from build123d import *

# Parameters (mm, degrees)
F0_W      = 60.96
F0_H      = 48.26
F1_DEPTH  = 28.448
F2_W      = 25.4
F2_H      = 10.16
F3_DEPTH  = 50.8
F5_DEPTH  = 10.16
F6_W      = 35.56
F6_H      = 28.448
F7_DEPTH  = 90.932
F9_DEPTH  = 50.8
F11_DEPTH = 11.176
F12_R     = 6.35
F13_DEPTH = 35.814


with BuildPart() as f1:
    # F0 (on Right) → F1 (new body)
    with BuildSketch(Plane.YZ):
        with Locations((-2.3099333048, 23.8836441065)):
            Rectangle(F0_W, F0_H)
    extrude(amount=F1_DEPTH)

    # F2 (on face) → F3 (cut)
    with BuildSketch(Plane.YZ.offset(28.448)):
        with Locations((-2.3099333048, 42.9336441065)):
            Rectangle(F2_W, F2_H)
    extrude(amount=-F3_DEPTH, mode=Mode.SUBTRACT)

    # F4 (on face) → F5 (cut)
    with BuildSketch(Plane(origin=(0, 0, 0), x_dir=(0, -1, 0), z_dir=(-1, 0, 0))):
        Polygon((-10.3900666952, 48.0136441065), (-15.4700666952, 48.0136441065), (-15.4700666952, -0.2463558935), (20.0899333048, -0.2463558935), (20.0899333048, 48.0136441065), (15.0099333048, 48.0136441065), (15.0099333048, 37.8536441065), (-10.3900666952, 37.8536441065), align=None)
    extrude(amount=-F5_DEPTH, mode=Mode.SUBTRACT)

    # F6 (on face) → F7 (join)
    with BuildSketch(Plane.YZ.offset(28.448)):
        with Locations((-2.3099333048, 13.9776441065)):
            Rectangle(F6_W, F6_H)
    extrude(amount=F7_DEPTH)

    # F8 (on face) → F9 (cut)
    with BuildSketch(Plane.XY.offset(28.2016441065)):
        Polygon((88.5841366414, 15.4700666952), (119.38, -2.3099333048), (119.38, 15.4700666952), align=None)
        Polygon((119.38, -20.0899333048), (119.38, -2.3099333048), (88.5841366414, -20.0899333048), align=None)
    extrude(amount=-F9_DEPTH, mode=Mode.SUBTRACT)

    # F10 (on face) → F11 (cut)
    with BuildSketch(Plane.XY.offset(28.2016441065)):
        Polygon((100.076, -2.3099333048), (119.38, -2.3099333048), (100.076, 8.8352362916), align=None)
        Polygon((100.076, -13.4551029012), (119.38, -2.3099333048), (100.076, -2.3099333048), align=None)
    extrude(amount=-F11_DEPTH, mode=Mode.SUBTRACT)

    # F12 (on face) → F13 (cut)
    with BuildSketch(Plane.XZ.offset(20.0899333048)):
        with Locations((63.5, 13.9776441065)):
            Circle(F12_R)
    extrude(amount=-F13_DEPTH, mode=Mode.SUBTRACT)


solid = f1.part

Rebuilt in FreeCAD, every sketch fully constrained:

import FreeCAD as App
import Part
import Sketcher

V = App.Vector
Q = App.Units.Quantity

doc = App.newDocument("Part")
params = doc.addObject("Spreadsheet::Sheet", "Params")
for row, (alias, value) in enumerate([
    ("sketch1_width", "2.4 in"),
    ("sketch1_height", "1.9 in"),
    ("pad1_length", "1.12 in"),
    ("sketch2_width", "1 in"),
    ("sketch2_height", "0.4 in"),
    ("pocket1_length", "2 in"),
    ("sketch3_width", "1 in"),
    ("sketch3_width2", "0.2 in"),
    ("sketch3_height", "1.9 in"),
    ("sketch3_height2", "0.4 in"),
    ("pocket2_length", "0.4 in"),
    ("sketch4_width", "1.4 in"),
    ("sketch4_height", "1.12 in"),
    ("pad2_length", "3.58 in"),
    ("sketch5_height", "0.7 in"),
    ("pocket3_length", "2 in"),
    ("pocket4_length", "0.44 in"),
    ("sketch7_diameter", "0.5 in"),
    ("pocket5_length", "1.41 in"),
], start=1):
    params.set(f"A{row}", alias)
    params.set(f"B{row}", "=" + value)
    params.setAlias(f"B{row}", alias)

body = doc.addObject("PartDesign::Body", "Body")

# Sketch on YZ plane
sketch1 = body.newObject("Sketcher::SketchObject", "Sketch")
sketch1.AttachmentSupport = (doc.getObject("YZ_Plane"), [""])
sketch1.MapMode = "FlatFace"
sketch1.addGeometry(Part.LineSegment(V(-33, 48, 0), V(-33, 0, 0)), False)
sketch1.addGeometry(Part.LineSegment(V(-33, 0, 0), V(28, 0, 0)), False)
sketch1.addGeometry(Part.LineSegment(V(28, 0, 0), V(28, 48, 0)), False)
sketch1.addGeometry(Part.LineSegment(V(28, 48, 0), V(-33, 48, 0)), False)
sketch1.addConstraint(Sketcher.Constraint("Coincident", 0, 2, 1, 1))
sketch1.addConstraint(Sketcher.Constraint("Coincident", 1, 2, 2, 1))
sketch1.addConstraint(Sketcher.Constraint("Coincident", 2, 2, 3, 1))
sketch1.addConstraint(Sketcher.Constraint("Coincident", 3, 2, 0, 1))
sketch1.addConstraint(Sketcher.Constraint("Vertical", 0))
sketch1.addConstraint(Sketcher.Constraint("Horizontal", 1))
sketch1.addConstraint(Sketcher.Constraint("Vertical", 2))
sketch1.addConstraint(Sketcher.Constraint("Horizontal", 3))
sketch1.addConstraint(Sketcher.Constraint("DistanceX", 1, 1, 1, 2, Q("2.4 in")))
sketch1.addConstraint(Sketcher.Constraint("DistanceY", 0, 2, 0, 1, Q("1.9 in")))
sketch1.addConstraint(Sketcher.Constraint("DistanceX", 0, 2, -1, 1, 32.789933))
sketch1.addConstraint(Sketcher.Constraint("DistanceY", 0, 2, -1, 1, 0.246356))
sketch1.setExpression("Constraints[8]", "Params.sketch1_width")
sketch1.setExpression("Constraints[9]", "Params.sketch1_height")
pad1 = body.newObject("PartDesign::Pad", "Pad")
pad1.Profile = sketch1
pad1.setExpression("Length", "Params.pad1_length")

# Sketch on YZ plane
sketch2 = body.newObject("Sketcher::SketchObject", "Sketch001")
sketch2.AttachmentSupport = (doc.getObject("YZ_Plane"), [""])
sketch2.MapMode = "FlatFace"
sketch2.AttachmentOffset = App.Placement(V(0, 0, 1.12 * 25.4), App.Rotation())
sketch2.addGeometry(Part.LineSegment(V(-15, 48, 0), V(-15, 38, 0)), False)
sketch2.addGeometry(Part.LineSegment(V(-15, 38, 0), V(10, 38, 0)), False)
sketch2.addGeometry(Part.LineSegment(V(10, 38, 0), V(10, 48, 0)), False)
sketch2.addGeometry(Part.LineSegment(V(10, 48, 0), V(-15, 48, 0)), False)
sketch2.addConstraint(Sketcher.Constraint("Coincident", 0, 2, 1, 1))
sketch2.addConstraint(Sketcher.Constraint("Coincident", 1, 2, 2, 1))
sketch2.addConstraint(Sketcher.Constraint("Coincident", 2, 2, 3, 1))
sketch2.addConstraint(Sketcher.Constraint("Coincident", 3, 2, 0, 1))
sketch2.addConstraint(Sketcher.Constraint("Vertical", 0))
sketch2.addConstraint(Sketcher.Constraint("Horizontal", 1))
sketch2.addConstraint(Sketcher.Constraint("Vertical", 2))
sketch2.addConstraint(Sketcher.Constraint("Horizontal", 3))
sketch2.addConstraint(Sketcher.Constraint("DistanceX", 1, 1, 1, 2, Q("1 in")))
sketch2.addConstraint(Sketcher.Constraint("DistanceY", 0, 2, 0, 1, Q("0.4 in")))
sketch2.addConstraint(Sketcher.Constraint("DistanceX", 0, 2, -1, 1, 15.009933))
sketch2.addConstraint(Sketcher.Constraint("DistanceY", -1, 1, 0, 2, 37.853644))
sketch2.setExpression("Constraints[8]", "Params.sketch2_width")
sketch2.setExpression("Constraints[9]", "Params.sketch2_height")
pocket1 = body.newObject("PartDesign::Pocket", "Pocket")
pocket1.Profile = sketch2
pocket1.setExpression("Length", "Params.pocket1_length")

# Sketch on YZ plane
sketch3 = body.newObject("Sketcher::SketchObject", "Sketch002")
sketch3.AttachmentSupport = (doc.getObject("YZ_Plane"), [""])
sketch3.MapMode = "FlatFace"
sketch3.addGeometry(Part.LineSegment(V(10, 48, 0), V(15, 48, 0)), False)
sketch3.addGeometry(Part.LineSegment(V(15, 48, 0), V(15, 0, 0)), False)
sketch3.addGeometry(Part.LineSegment(V(15, 0, 0), V(-20, 0, 0)), False)
sketch3.addGeometry(Part.LineSegment(V(-20, 0, 0), V(-20, 48, 0)), False)
sketch3.addGeometry(Part.LineSegment(V(-20, 48, 0), V(-15, 48, 0)), False)
sketch3.addGeometry(Part.LineSegment(V(-15, 48, 0), V(-15, 38, 0)), False)
sketch3.addGeometry(Part.LineSegment(V(-15, 38, 0), V(10, 38, 0)), False)
sketch3.addGeometry(Part.LineSegment(V(10, 38, 0), V(10, 48, 0)), False)
sketch3.addConstraint(Sketcher.Constraint("Coincident", 0, 2, 1, 1))
sketch3.addConstraint(Sketcher.Constraint("Coincident", 1, 2, 2, 1))
sketch3.addConstraint(Sketcher.Constraint("Coincident", 2, 2, 3, 1))
sketch3.addConstraint(Sketcher.Constraint("Coincident", 3, 2, 4, 1))
sketch3.addConstraint(Sketcher.Constraint("Coincident", 4, 2, 5, 1))
sketch3.addConstraint(Sketcher.Constraint("Coincident", 5, 2, 6, 1))
sketch3.addConstraint(Sketcher.Constraint("Coincident", 6, 2, 7, 1))
sketch3.addConstraint(Sketcher.Constraint("Coincident", 7, 2, 0, 1))
sketch3.addConstraint(Sketcher.Constraint("Horizontal", 0))
sketch3.addConstraint(Sketcher.Constraint("Vertical", 1))
sketch3.addConstraint(Sketcher.Constraint("Horizontal", 2))
sketch3.addConstraint(Sketcher.Constraint("Vertical", 3))
sketch3.addConstraint(Sketcher.Constraint("Horizontal", 4))
sketch3.addConstraint(Sketcher.Constraint("Vertical", 5))
sketch3.addConstraint(Sketcher.Constraint("Horizontal", 6))
sketch3.addConstraint(Sketcher.Constraint("Vertical", 7))
sketch3.addConstraint(Sketcher.Constraint("Horizontal", 0, 2, 3, 2))
sketch3.addConstraint(Sketcher.Constraint("Equal", 0, 4))
sketch3.addConstraint(Sketcher.Constraint("DistanceX", 6, 1, 6, 2, Q("1 in")))
sketch3.addConstraint(Sketcher.Constraint("DistanceX", 0, 1, 0, 2, Q("0.2 in")))
sketch3.addConstraint(Sketcher.Constraint("DistanceY", 1, 2, 1, 1, Q("1.9 in")))
sketch3.addConstraint(Sketcher.Constraint("DistanceY", 5, 2, 5, 1, Q("0.4 in")))
sketch3.addConstraint(Sketcher.Constraint("DistanceX", -1, 1, 0, 2, 15.470067))
sketch3.addConstraint(Sketcher.Constraint("DistanceY", -1, 1, 0, 2, 48.013644))
sketch3.setExpression("Constraints[18]", "Params.sketch3_width")
sketch3.setExpression("Constraints[19]", "Params.sketch3_width2")
sketch3.setExpression("Constraints[20]", "Params.sketch3_height")
sketch3.setExpression("Constraints[21]", "Params.sketch3_height2")
pocket2 = body.newObject("PartDesign::Pocket", "Pocket001")
pocket2.Profile = sketch3
pocket2.setExpression("Length", "Params.pocket2_length")
pocket2.Reversed = True

# Sketch on YZ plane
sketch4 = body.newObject("Sketcher::SketchObject", "Sketch003")
sketch4.AttachmentSupport = (doc.getObject("YZ_Plane"), [""])
sketch4.MapMode = "FlatFace"
sketch4.AttachmentOffset = App.Placement(V(0, 0, 1.12 * 25.4), App.Rotation())
sketch4.addGeometry(Part.LineSegment(V(-20, 28, 0), V(-20, 0, 0)), False)
sketch4.addGeometry(Part.LineSegment(V(-20, 0, 0), V(15, 0, 0)), False)
sketch4.addGeometry(Part.LineSegment(V(15, 0, 0), V(15, 28, 0)), False)
sketch4.addGeometry(Part.LineSegment(V(15, 28, 0), V(-20, 28, 0)), False)
sketch4.addConstraint(Sketcher.Constraint("Coincident", 0, 2, 1, 1))
sketch4.addConstraint(Sketcher.Constraint("Coincident", 1, 2, 2, 1))
sketch4.addConstraint(Sketcher.Constraint("Coincident", 2, 2, 3, 1))
sketch4.addConstraint(Sketcher.Constraint("Coincident", 3, 2, 0, 1))
sketch4.addConstraint(Sketcher.Constraint("Vertical", 0))
sketch4.addConstraint(Sketcher.Constraint("Horizontal", 1))
sketch4.addConstraint(Sketcher.Constraint("Vertical", 2))
sketch4.addConstraint(Sketcher.Constraint("Horizontal", 3))
sketch4.addConstraint(Sketcher.Constraint("DistanceX", 1, 1, 1, 2, Q("1.4 in")))
sketch4.addConstraint(Sketcher.Constraint("DistanceY", 0, 2, 0, 1, Q("1.12 in")))
sketch4.addConstraint(Sketcher.Constraint("DistanceX", 0, 2, -1, 1, 20.089933))
sketch4.addConstraint(Sketcher.Constraint("DistanceY", 0, 2, -1, 1, 0.246356))
sketch4.setExpression("Constraints[8]", "Params.sketch4_width")
sketch4.setExpression("Constraints[9]", "Params.sketch4_height")
pad2 = body.newObject("PartDesign::Pad", "Pad001")
pad2.Profile = sketch4
pad2.setExpression("Length", "Params.pad2_length")

# Sketch on XY plane
sketch5 = body.newObject("Sketcher::SketchObject", "Sketch004")
sketch5.AttachmentSupport = (doc.getObject("XY_Plane"), [""])
sketch5.MapMode = "FlatFace"
sketch5.AttachmentOffset = App.Placement(V(0, 0, 28.201644), App.Rotation())
sketch5.addGeometry(Part.LineSegment(V(89, 15, 0), V(119, -2, 0)), False)
sketch5.addGeometry(Part.LineSegment(V(119, -2, 0), V(119, 15, 0)), False)
sketch5.addGeometry(Part.LineSegment(V(119, 15, 0), V(89, 15, 0)), False)
sketch5.addGeometry(Part.LineSegment(V(119, -20, 0), V(119, -2, 0)), False)
sketch5.addGeometry(Part.LineSegment(V(119, -2, 0), V(89, -20, 0)), False)
sketch5.addGeometry(Part.LineSegment(V(89, -20, 0), V(119, -20, 0)), False)
sketch5.addConstraint(Sketcher.Constraint("Coincident", 0, 2, 1, 1))
sketch5.addConstraint(Sketcher.Constraint("Coincident", 1, 2, 2, 1))
sketch5.addConstraint(Sketcher.Constraint("Coincident", 2, 2, 0, 1))
sketch5.addConstraint(Sketcher.Constraint("Coincident", 3, 2, 4, 1))
sketch5.addConstraint(Sketcher.Constraint("Coincident", 4, 2, 5, 1))
sketch5.addConstraint(Sketcher.Constraint("Coincident", 5, 2, 3, 1))
sketch5.addConstraint(Sketcher.Constraint("Vertical", 1))
sketch5.addConstraint(Sketcher.Constraint("Horizontal", 2))
sketch5.addConstraint(Sketcher.Constraint("Vertical", 3))
sketch5.addConstraint(Sketcher.Constraint("Horizontal", 5))
sketch5.addConstraint(Sketcher.Constraint("Coincident", 3, 2, 0, 2))
sketch5.addConstraint(Sketcher.Constraint("Vertical", 2, 2, 4, 2))
sketch5.addConstraint(Sketcher.Constraint("Equal", 1, 3))
sketch5.addConstraint(Sketcher.Constraint("DistanceY", 1, 1, 1, 2, Q("0.7 in")))
sketch5.addConstraint(Sketcher.Constraint("Angle", 0, Q("-30 deg")))
sketch5.addConstraint(Sketcher.Constraint("DistanceX", -1, 1, 0, 2, Q("4.7 in")))
sketch5.addConstraint(Sketcher.Constraint("DistanceY", 0, 2, -1, 1, 2.309933))
sketch5.setExpression("Constraints[13]", "Params.sketch5_height")
pocket3 = body.newObject("PartDesign::Pocket", "Pocket002")
pocket3.Profile = sketch5
pocket3.setExpression("Length", "Params.pocket3_length")

# Sketch on XY plane
sketch6 = body.newObject("Sketcher::SketchObject", "Sketch005")
sketch6.AttachmentSupport = (doc.getObject("XY_Plane"), [""])
sketch6.MapMode = "FlatFace"
sketch6.AttachmentOffset = App.Placement(V(0, 0, 28.201644), App.Rotation())
sketch6.addGeometry(Part.LineSegment(V(119, -2, 0), V(100, 9, 0)), False)
sketch6.addGeometry(Part.LineSegment(V(100, 9, 0), V(100, -13, 0)), False)
sketch6.addGeometry(Part.LineSegment(V(100, -13, 0), V(119, -2, 0)), False)
sketch6.addConstraint(Sketcher.Constraint("Coincident", 0, 2, 1, 1))
sketch6.addConstraint(Sketcher.Constraint("Coincident", 1, 2, 2, 1))
sketch6.addConstraint(Sketcher.Constraint("Coincident", 2, 2, 0, 1))
sketch6.addConstraint(Sketcher.Constraint("Vertical", 1))
sketch6.addConstraint(Sketcher.Constraint("Equal", 0, 2))
sketch6.addConstraint(Sketcher.Constraint("Angle", 0, Q("150 deg")))
sketch6.addConstraint(Sketcher.Constraint("DistanceX", -1, 1, 2, 2, Q("4.7 in")))
sketch6.addConstraint(Sketcher.Constraint("DistanceX", -1, 1, 0, 2, Q("3.94 in")))
sketch6.addConstraint(Sketcher.Constraint("DistanceY", -1, 1, 0, 2, 8.835236))
pocket4 = body.newObject("PartDesign::Pocket", "Pocket003")
pocket4.Profile = sketch6
pocket4.setExpression("Length", "Params.pocket4_length")

# Sketch on XZ plane
sketch7 = body.newObject("Sketcher::SketchObject", "Sketch006")
sketch7.AttachmentSupport = (doc.getObject("XZ_Plane"), [""])
sketch7.MapMode = "FlatFace"
sketch7.AttachmentOffset = App.Placement(V(0, 0, 20.089933), App.Rotation())
sketch7.addGeometry(Part.Circle(V(64, 14, 0), V(0, 0, 1), 6), False)
sketch7.addConstraint(Sketcher.Constraint("Diameter", 0, Q("0.5 in")))
sketch7.addConstraint(Sketcher.Constraint("DistanceX", -1, 1, 0, 3, Q("2.5 in")))
sketch7.addConstraint(Sketcher.Constraint("DistanceY", -1, 1, 0, 3, 13.977644))
sketch7.setExpression("Constraints[0]", "Params.sketch7_diameter")
pocket5 = body.newObject("PartDesign::Pocket", "Pocket004")
pocket5.Profile = sketch7
pocket5.setExpression("Length", "Params.pocket5_length")

doc.recompute()
